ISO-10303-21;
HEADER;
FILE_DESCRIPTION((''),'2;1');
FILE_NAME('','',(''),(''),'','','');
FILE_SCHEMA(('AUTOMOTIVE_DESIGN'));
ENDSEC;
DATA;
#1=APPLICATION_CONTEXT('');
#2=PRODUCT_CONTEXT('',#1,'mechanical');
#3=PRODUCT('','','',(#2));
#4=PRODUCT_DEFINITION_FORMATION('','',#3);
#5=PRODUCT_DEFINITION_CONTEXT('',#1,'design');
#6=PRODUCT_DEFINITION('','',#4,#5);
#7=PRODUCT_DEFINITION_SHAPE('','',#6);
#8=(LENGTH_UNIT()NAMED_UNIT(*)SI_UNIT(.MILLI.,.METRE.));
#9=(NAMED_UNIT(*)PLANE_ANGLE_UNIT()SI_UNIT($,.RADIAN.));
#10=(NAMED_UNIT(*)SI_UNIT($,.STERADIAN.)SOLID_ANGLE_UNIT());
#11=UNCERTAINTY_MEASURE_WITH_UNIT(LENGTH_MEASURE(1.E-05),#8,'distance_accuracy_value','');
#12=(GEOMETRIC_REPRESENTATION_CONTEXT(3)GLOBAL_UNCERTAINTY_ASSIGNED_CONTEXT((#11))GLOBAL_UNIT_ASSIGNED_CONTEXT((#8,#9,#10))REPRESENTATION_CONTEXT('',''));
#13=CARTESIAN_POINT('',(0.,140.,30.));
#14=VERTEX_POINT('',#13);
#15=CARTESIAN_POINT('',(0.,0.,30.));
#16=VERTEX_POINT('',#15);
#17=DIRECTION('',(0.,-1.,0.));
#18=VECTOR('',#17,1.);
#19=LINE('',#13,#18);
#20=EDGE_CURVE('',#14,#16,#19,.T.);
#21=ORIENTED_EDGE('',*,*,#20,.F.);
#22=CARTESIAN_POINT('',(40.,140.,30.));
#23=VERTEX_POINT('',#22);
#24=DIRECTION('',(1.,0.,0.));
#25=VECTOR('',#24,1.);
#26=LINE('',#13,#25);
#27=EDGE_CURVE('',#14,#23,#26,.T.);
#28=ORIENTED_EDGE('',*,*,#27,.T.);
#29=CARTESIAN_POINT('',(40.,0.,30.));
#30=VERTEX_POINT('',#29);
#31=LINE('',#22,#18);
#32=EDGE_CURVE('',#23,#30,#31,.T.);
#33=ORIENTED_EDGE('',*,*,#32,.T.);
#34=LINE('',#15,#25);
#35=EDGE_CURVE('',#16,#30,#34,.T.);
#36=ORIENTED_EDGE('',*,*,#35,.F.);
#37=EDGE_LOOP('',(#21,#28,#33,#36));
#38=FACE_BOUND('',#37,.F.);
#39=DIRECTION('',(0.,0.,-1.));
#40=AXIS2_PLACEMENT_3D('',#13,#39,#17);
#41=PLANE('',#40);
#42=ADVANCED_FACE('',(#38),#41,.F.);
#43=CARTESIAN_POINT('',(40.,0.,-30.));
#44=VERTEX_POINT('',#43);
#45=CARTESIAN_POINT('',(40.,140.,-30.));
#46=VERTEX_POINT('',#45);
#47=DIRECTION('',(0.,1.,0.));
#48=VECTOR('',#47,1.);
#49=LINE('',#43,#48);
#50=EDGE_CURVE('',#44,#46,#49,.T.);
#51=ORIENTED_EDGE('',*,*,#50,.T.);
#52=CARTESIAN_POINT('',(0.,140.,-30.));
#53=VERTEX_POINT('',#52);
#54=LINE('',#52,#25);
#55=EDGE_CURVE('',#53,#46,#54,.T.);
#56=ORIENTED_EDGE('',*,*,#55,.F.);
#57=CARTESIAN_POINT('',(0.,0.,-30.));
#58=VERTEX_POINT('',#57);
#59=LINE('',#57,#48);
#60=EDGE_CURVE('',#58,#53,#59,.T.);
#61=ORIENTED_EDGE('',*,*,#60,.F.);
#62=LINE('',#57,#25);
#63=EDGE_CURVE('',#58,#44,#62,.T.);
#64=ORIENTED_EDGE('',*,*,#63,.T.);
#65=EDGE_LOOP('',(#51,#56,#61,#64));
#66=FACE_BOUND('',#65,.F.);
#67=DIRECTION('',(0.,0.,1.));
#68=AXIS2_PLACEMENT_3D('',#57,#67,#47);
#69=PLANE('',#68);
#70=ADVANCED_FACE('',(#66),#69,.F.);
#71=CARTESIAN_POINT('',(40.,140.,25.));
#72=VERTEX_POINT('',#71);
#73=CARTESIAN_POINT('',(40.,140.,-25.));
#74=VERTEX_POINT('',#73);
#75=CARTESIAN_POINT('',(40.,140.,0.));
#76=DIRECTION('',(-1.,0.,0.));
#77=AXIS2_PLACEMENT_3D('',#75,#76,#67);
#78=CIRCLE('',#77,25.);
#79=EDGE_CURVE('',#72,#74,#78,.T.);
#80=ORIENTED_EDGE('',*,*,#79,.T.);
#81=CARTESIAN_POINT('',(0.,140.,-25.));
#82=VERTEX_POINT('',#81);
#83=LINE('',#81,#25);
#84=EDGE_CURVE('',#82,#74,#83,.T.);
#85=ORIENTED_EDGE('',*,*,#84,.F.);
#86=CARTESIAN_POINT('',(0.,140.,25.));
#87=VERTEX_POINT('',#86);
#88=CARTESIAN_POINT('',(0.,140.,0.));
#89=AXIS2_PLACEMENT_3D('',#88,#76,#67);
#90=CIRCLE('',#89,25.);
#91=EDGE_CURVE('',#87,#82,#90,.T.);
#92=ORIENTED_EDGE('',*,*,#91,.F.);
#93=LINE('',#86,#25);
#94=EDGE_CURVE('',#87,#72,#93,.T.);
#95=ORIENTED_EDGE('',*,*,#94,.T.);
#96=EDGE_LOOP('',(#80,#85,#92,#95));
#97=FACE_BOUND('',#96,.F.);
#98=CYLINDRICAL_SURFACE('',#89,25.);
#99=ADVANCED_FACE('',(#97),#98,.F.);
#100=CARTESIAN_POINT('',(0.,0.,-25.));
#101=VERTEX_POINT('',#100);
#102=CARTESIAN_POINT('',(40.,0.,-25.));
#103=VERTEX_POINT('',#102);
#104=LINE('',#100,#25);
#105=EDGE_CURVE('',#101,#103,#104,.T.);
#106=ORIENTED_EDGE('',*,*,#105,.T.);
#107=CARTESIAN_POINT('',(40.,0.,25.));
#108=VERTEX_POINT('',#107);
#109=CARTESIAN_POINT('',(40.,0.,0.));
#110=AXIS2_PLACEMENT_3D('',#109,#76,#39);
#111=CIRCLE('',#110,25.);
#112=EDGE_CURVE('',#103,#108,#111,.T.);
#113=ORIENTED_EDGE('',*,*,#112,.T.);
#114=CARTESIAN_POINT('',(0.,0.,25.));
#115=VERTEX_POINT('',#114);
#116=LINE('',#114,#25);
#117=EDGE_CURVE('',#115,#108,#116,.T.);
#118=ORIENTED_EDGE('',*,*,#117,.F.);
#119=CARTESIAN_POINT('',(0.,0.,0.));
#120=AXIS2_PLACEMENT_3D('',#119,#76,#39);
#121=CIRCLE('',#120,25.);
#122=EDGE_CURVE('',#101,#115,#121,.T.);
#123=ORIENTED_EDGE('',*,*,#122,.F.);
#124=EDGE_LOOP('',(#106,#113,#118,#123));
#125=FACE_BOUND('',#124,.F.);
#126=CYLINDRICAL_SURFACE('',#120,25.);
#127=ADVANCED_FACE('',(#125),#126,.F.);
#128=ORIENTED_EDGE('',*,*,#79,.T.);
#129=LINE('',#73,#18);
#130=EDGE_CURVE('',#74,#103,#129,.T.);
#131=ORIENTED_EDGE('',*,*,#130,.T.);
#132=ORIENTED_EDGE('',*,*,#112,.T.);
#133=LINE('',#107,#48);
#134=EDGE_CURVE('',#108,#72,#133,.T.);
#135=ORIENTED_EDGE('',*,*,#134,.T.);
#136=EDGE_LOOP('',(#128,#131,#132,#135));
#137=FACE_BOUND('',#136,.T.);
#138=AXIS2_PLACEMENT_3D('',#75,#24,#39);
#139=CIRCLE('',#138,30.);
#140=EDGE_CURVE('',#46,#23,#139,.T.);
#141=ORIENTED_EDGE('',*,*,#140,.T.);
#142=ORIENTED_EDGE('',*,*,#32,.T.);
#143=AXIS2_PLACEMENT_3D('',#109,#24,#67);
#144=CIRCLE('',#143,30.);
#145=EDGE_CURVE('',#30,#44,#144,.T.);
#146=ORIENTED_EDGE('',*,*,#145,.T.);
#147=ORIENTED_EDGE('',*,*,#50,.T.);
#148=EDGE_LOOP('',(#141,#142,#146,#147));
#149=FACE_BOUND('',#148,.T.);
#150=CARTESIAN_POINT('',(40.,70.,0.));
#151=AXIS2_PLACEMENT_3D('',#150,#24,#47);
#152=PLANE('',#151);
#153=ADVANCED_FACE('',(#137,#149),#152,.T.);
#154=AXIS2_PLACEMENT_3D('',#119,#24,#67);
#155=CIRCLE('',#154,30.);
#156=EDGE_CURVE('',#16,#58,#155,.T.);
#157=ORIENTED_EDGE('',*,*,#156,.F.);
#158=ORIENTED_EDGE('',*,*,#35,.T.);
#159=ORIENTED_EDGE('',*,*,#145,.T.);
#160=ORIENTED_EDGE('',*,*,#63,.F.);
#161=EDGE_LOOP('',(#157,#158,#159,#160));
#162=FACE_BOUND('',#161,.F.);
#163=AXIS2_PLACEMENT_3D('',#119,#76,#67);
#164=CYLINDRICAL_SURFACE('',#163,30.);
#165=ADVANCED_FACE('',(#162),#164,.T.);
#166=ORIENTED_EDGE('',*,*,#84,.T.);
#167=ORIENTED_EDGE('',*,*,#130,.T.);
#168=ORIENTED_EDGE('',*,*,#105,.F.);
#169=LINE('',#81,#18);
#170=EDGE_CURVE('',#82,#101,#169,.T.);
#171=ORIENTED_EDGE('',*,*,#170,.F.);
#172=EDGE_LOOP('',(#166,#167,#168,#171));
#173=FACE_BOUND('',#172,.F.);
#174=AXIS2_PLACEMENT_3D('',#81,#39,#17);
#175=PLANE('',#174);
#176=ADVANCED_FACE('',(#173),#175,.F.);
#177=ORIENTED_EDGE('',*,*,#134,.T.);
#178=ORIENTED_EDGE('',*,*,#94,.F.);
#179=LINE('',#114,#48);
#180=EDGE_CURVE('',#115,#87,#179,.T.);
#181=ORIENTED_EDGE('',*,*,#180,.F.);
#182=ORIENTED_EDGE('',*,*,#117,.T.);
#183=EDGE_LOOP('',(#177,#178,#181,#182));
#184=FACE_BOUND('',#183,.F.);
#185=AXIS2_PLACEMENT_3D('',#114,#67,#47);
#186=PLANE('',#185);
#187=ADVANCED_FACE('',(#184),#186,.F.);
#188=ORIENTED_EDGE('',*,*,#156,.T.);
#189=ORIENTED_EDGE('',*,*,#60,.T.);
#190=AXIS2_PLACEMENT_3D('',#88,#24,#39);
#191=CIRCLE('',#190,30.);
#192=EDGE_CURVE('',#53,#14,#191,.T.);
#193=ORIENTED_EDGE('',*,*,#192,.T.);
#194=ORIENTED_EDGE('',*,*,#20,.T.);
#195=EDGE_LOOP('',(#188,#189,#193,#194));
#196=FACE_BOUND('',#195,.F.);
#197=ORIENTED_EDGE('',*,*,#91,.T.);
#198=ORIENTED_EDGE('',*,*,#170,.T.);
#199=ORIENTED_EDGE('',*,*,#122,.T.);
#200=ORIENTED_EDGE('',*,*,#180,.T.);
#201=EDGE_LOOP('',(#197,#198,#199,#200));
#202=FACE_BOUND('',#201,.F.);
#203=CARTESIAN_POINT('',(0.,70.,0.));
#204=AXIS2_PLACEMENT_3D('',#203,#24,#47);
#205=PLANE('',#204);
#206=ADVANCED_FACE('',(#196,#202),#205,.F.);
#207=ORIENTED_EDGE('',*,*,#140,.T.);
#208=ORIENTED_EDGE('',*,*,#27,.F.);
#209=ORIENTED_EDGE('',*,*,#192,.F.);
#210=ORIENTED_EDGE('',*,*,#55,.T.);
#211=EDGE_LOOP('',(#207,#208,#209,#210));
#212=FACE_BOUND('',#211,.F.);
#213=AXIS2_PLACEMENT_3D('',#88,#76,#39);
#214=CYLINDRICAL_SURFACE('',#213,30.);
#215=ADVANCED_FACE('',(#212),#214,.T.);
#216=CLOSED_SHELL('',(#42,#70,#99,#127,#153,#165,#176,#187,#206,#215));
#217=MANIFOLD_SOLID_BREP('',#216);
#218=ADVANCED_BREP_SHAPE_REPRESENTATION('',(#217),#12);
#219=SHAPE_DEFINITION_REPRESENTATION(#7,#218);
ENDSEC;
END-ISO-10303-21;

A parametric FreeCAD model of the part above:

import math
import FreeCAD as App
import Part
import Sketcher

doc = App.newDocument("Part")
body = doc.addObject("PartDesign::Body", "Body")

# Sketch on YZ plane
sketch1 = body.newObject("Sketcher::SketchObject", "Sketch")
sketch1.AttachmentSupport = (doc.getObject("YZ_Plane"), [""])
sketch1.MapMode = "FlatFace"
sketch1.addGeometry([
    Part.ArcOfCircle(Part.Circle(App.Vector(0, 0, 0), App.Vector(0, 0, 1), 30), math.radians(90), math.radians(270)),  # 0
    Part.LineSegment(App.Vector(0, -30, 0), App.Vector(140, -30, 0)),  # 1
    Part.ArcOfCircle(Part.Circle(App.Vector(140, 0, 0), App.Vector(0, 0, 1), 30), math.radians(-90), math.radians(90)),  # 2
    Part.LineSegment(App.Vector(140, 30, 0), App.Vector(0, 30, 0)),  # 3
    Part.LineSegment(App.Vector(140, -25, 0), App.Vector(0, -25, 0)),  # 4
    Part.ArcOfCircle(Part.Circle(App.Vector(0, 0, 0), App.Vector(0, 0, 1), 25), math.radians(90), math.radians(270)),  # 5
    Part.LineSegment(App.Vector(0, 25, 0), App.Vector(140, 25, 0)),  # 6
    Part.ArcOfCircle(Part.Circle(App.Vector(140, 0, 0), App.Vector(0, 0, 1), 25), math.radians(-90), math.radians(90)),  # 7
], False)
sketch1.addConstraint([
    Sketcher.Constraint("Tangent", 0, 2, 1, 1),
    Sketcher.Constraint("Tangent", 1, 2, 2, 1),
    Sketcher.Constraint("Tangent", 2, 2, 3, 1),
    Sketcher.Constraint("Tangent", 3, 2, 0, 1),
    Sketcher.Constraint("Tangent", 4, 2, 5, 2),
    Sketcher.Constraint("Tangent", 5, 1, 6, 1),
    Sketcher.Constraint("Tangent", 6, 2, 7, 2),
    Sketcher.Constraint("Tangent", 7, 1, 4, 1),
    Sketcher.Constraint("Horizontal", 1),
    Sketcher.Constraint("Horizontal", 3),
    Sketcher.Constraint("Horizontal", 4),
    Sketcher.Constraint("Horizontal", 6),
    Sketcher.Constraint("Coincident", 0, 3, -1, 1),
    Sketcher.Constraint("Coincident", 5, 3, -1, 1),
    Sketcher.Constraint("Vertical", 7, 3, 1, 2),
    Sketcher.Constraint("Radius", 0, 30.0),
    Sketcher.Constraint("Radius", 5, 25.0),
    Sketcher.Constraint("DistanceX", 1, 1, 1, 2, 140.0),
])
pad1 = body.newObject("PartDesign::Pad", "Pad")
pad1.Profile = sketch1
pad1.Length = 40

doc.recompute()
